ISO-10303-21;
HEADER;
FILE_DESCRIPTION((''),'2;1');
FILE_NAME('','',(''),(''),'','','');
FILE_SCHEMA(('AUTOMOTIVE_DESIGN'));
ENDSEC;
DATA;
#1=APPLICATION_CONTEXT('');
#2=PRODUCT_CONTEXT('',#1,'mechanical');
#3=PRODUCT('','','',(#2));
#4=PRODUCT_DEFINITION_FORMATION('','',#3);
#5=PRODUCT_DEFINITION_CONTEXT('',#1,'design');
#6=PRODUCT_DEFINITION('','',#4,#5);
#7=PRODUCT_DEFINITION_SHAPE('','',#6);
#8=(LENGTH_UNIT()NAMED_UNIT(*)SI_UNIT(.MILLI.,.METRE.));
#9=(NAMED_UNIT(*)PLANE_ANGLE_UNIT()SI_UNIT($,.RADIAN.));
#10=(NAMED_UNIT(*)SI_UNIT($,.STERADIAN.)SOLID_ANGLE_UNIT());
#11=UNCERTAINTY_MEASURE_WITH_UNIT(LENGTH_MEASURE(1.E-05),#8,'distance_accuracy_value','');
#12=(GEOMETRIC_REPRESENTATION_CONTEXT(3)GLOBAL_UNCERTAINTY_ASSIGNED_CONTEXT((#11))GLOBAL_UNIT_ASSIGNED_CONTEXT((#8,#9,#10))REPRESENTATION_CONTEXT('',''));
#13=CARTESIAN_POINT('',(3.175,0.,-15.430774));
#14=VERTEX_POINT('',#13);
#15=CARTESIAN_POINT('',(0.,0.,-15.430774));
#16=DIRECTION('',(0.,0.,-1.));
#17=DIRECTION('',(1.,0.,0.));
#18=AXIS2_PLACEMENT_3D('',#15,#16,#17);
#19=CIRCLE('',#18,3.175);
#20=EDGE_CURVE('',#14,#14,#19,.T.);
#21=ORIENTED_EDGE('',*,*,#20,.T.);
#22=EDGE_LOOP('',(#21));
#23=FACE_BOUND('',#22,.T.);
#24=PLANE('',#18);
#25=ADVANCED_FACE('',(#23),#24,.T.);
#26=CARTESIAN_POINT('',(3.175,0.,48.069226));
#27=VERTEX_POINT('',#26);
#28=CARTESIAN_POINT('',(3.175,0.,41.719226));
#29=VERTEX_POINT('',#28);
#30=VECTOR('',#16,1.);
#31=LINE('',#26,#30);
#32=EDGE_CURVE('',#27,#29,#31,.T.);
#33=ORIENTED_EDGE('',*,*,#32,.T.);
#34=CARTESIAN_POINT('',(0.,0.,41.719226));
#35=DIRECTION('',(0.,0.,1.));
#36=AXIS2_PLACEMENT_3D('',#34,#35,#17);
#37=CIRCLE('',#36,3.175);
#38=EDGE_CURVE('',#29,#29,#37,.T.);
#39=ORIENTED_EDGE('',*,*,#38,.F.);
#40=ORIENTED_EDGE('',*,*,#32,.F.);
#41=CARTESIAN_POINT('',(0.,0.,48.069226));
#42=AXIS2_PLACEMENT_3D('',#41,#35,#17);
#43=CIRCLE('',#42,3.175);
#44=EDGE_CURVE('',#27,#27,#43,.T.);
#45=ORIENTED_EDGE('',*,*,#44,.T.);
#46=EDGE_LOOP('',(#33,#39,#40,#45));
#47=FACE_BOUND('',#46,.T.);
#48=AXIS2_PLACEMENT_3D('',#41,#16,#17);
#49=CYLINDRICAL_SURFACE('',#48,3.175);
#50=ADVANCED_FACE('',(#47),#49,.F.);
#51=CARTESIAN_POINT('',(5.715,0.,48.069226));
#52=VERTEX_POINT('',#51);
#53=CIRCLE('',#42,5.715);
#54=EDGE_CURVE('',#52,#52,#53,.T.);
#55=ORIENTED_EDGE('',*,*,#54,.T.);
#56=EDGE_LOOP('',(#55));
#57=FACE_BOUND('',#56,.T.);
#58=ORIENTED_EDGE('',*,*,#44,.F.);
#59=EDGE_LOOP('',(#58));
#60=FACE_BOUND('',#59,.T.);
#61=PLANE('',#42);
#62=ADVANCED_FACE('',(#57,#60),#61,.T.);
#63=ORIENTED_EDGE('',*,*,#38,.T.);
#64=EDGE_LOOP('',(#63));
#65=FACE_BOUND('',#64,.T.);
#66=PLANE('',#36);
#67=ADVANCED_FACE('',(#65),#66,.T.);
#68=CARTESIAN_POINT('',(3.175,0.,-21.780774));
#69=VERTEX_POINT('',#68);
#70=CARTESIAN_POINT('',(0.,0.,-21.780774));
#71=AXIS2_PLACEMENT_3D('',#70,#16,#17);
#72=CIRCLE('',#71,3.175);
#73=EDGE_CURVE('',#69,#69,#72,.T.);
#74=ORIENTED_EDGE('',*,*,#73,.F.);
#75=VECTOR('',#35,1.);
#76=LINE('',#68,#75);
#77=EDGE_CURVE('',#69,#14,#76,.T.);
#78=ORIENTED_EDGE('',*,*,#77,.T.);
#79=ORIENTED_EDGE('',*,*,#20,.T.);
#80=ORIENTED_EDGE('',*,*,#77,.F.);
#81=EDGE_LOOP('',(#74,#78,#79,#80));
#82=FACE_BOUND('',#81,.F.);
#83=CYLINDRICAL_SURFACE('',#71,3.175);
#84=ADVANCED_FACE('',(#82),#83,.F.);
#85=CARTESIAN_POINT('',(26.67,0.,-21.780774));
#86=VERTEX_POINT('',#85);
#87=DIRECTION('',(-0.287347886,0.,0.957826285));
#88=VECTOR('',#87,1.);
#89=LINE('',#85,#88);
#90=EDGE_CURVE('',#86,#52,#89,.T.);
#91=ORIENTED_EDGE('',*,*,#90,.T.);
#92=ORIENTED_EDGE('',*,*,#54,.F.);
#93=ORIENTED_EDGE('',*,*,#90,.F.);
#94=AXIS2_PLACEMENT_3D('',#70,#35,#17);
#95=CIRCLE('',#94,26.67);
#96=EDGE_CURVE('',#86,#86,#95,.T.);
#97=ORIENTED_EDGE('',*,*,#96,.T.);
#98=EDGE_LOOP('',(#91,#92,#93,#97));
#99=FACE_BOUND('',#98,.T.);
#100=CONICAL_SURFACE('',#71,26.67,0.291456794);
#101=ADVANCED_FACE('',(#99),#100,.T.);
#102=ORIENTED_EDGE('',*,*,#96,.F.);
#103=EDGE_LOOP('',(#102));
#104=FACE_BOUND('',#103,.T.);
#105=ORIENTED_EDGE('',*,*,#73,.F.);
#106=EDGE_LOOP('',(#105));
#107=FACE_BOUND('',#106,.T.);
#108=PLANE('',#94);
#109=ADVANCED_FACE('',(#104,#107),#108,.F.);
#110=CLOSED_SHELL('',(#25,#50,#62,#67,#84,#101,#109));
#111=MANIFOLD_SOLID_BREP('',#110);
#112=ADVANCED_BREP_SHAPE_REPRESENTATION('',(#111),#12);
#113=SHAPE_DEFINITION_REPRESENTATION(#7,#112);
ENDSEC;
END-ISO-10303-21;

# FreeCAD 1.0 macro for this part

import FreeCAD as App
import Part
import Sketcher
from FreeCAD import Vector
Q = App.Units.Quantity

doc = App.newDocument("Part")
body = doc.addObject("PartDesign::Body", "Body")

sketch1 = doc.addObject("Sketcher::SketchObject", "Sketch")
body.addObject(sketch1)
sketch1.AttachmentSupport = (doc.XZ_Plane, [""])
sketch1.MapMode = "FlatFace"
sketch1.addGeometry(Part.LineSegment(Vector(26.7, -21.8, 0), Vector(5.7, 48.1, 0)), False)
sketch1.addGeometry(Part.LineSegment(Vector(5.7, 48.1, 0), Vector(3.2, 48.1, 0)), False)
sketch1.addGeometry(Part.LineSegment(Vector(3.2, 48.1, 0), Vector(3.2, 41.7, 0)), False)
sketch1.addGeometry(Part.LineSegment(Vector(3.2, 41.7, 0), Vector(0, 41.7, 0)), False)
sketch1.addGeometry(Part.LineSegment(Vector(0, 41.7, 0), Vector(0, -21.8, 0)), False)
sketch1.addGeometry(Part.LineSegment(Vector(0, -21.8, 0), Vector(26.7, -21.8, 0)), False)
sketch1.addConstraint(Sketcher.Constraint("Coincident", 0, 2, 1, 1))
sketch1.addConstraint(Sketcher.Constraint("Coincident", 1, 2, 2, 1))
sketch1.addConstraint(Sketcher.Constraint("Coincident", 2, 2, 3, 1))
sketch1.addConstraint(Sketcher.Constraint("Coincident", 3, 2, 4, 1))
sketch1.addConstraint(Sketcher.Constraint("Coincident", 4, 2, 5, 1))
sketch1.addConstraint(Sketcher.Constraint("Coincident", 5, 2, 0, 1))
sketch1.addConstraint(Sketcher.Constraint("Horizontal", 1))
sketch1.addConstraint(Sketcher.Constraint("Vertical", 2))
sketch1.addConstraint(Sketcher.Constraint("Horizontal", 3))
sketch1.addConstraint(Sketcher.Constraint("Vertical", 4))
sketch1.addConstraint(Sketcher.Constraint("Horizontal", 5))
sketch1.addConstraint(Sketcher.Constraint("PointOnObject", 3, 2, -2))
sketch1.addConstraint(Sketcher.Constraint("DistanceX", 1, 2, 1, 1, Q("0.1 in")))
sketch1.addConstraint(Sketcher.Constraint("DistanceY", 4, 2, 4, 1, Q("2.5 in")))
sketch1.addConstraint(Sketcher.Constraint("DistanceX", 5, 1, 5, 2, Q("1.05 in")))
sketch1.addConstraint(Sketcher.Constraint("DistanceY", 2, 2, 2, 1, Q("0.25 in")))
sketch1.addConstraint(Sketcher.Constraint("DistanceX", 3, 2, 3, 1, Q("0.125 in")))
sketch1.addConstraint(Sketcher.Constraint("DistanceY", -1, 1, 0, 2, 48.069226))
revolution = doc.addObject("PartDesign::Revolution", "Revolution")
body.addObject(revolution)
revolution.Profile = sketch1
revolution.ReferenceAxis = (sketch1, ["V_Axis"])
revolution.Angle = 360

sketch2 = doc.addObject("Sketcher::SketchObject", "Sketch001")
body.addObject(sketch2)
sketch2.AttachmentSupport = (doc.XY_Plane, [""])
sketch2.MapMode = "FlatFace"
sketch2.AttachmentOffset = App.Placement(Vector(0, 0, -21.780774), App.Rotation())
sketch2.addGeometry(Part.Circle(Vector(0, 0, 0), Vector(0, 0, 1), 3.2), False)
sketch2.addConstraint(Sketcher.Constraint("Coincident", 0, 3, -1, 1))
sketch2.addConstraint(Sketcher.Constraint("Diameter", 0, Q("0.25 in")))
pocket1 = doc.addObject("PartDesign::Pocket", "Pocket")
body.addObject(pocket1)
pocket1.Profile = sketch2
pocket1.Length = Q("0.25 in")
pocket1.Reversed = True

doc.recompute()
